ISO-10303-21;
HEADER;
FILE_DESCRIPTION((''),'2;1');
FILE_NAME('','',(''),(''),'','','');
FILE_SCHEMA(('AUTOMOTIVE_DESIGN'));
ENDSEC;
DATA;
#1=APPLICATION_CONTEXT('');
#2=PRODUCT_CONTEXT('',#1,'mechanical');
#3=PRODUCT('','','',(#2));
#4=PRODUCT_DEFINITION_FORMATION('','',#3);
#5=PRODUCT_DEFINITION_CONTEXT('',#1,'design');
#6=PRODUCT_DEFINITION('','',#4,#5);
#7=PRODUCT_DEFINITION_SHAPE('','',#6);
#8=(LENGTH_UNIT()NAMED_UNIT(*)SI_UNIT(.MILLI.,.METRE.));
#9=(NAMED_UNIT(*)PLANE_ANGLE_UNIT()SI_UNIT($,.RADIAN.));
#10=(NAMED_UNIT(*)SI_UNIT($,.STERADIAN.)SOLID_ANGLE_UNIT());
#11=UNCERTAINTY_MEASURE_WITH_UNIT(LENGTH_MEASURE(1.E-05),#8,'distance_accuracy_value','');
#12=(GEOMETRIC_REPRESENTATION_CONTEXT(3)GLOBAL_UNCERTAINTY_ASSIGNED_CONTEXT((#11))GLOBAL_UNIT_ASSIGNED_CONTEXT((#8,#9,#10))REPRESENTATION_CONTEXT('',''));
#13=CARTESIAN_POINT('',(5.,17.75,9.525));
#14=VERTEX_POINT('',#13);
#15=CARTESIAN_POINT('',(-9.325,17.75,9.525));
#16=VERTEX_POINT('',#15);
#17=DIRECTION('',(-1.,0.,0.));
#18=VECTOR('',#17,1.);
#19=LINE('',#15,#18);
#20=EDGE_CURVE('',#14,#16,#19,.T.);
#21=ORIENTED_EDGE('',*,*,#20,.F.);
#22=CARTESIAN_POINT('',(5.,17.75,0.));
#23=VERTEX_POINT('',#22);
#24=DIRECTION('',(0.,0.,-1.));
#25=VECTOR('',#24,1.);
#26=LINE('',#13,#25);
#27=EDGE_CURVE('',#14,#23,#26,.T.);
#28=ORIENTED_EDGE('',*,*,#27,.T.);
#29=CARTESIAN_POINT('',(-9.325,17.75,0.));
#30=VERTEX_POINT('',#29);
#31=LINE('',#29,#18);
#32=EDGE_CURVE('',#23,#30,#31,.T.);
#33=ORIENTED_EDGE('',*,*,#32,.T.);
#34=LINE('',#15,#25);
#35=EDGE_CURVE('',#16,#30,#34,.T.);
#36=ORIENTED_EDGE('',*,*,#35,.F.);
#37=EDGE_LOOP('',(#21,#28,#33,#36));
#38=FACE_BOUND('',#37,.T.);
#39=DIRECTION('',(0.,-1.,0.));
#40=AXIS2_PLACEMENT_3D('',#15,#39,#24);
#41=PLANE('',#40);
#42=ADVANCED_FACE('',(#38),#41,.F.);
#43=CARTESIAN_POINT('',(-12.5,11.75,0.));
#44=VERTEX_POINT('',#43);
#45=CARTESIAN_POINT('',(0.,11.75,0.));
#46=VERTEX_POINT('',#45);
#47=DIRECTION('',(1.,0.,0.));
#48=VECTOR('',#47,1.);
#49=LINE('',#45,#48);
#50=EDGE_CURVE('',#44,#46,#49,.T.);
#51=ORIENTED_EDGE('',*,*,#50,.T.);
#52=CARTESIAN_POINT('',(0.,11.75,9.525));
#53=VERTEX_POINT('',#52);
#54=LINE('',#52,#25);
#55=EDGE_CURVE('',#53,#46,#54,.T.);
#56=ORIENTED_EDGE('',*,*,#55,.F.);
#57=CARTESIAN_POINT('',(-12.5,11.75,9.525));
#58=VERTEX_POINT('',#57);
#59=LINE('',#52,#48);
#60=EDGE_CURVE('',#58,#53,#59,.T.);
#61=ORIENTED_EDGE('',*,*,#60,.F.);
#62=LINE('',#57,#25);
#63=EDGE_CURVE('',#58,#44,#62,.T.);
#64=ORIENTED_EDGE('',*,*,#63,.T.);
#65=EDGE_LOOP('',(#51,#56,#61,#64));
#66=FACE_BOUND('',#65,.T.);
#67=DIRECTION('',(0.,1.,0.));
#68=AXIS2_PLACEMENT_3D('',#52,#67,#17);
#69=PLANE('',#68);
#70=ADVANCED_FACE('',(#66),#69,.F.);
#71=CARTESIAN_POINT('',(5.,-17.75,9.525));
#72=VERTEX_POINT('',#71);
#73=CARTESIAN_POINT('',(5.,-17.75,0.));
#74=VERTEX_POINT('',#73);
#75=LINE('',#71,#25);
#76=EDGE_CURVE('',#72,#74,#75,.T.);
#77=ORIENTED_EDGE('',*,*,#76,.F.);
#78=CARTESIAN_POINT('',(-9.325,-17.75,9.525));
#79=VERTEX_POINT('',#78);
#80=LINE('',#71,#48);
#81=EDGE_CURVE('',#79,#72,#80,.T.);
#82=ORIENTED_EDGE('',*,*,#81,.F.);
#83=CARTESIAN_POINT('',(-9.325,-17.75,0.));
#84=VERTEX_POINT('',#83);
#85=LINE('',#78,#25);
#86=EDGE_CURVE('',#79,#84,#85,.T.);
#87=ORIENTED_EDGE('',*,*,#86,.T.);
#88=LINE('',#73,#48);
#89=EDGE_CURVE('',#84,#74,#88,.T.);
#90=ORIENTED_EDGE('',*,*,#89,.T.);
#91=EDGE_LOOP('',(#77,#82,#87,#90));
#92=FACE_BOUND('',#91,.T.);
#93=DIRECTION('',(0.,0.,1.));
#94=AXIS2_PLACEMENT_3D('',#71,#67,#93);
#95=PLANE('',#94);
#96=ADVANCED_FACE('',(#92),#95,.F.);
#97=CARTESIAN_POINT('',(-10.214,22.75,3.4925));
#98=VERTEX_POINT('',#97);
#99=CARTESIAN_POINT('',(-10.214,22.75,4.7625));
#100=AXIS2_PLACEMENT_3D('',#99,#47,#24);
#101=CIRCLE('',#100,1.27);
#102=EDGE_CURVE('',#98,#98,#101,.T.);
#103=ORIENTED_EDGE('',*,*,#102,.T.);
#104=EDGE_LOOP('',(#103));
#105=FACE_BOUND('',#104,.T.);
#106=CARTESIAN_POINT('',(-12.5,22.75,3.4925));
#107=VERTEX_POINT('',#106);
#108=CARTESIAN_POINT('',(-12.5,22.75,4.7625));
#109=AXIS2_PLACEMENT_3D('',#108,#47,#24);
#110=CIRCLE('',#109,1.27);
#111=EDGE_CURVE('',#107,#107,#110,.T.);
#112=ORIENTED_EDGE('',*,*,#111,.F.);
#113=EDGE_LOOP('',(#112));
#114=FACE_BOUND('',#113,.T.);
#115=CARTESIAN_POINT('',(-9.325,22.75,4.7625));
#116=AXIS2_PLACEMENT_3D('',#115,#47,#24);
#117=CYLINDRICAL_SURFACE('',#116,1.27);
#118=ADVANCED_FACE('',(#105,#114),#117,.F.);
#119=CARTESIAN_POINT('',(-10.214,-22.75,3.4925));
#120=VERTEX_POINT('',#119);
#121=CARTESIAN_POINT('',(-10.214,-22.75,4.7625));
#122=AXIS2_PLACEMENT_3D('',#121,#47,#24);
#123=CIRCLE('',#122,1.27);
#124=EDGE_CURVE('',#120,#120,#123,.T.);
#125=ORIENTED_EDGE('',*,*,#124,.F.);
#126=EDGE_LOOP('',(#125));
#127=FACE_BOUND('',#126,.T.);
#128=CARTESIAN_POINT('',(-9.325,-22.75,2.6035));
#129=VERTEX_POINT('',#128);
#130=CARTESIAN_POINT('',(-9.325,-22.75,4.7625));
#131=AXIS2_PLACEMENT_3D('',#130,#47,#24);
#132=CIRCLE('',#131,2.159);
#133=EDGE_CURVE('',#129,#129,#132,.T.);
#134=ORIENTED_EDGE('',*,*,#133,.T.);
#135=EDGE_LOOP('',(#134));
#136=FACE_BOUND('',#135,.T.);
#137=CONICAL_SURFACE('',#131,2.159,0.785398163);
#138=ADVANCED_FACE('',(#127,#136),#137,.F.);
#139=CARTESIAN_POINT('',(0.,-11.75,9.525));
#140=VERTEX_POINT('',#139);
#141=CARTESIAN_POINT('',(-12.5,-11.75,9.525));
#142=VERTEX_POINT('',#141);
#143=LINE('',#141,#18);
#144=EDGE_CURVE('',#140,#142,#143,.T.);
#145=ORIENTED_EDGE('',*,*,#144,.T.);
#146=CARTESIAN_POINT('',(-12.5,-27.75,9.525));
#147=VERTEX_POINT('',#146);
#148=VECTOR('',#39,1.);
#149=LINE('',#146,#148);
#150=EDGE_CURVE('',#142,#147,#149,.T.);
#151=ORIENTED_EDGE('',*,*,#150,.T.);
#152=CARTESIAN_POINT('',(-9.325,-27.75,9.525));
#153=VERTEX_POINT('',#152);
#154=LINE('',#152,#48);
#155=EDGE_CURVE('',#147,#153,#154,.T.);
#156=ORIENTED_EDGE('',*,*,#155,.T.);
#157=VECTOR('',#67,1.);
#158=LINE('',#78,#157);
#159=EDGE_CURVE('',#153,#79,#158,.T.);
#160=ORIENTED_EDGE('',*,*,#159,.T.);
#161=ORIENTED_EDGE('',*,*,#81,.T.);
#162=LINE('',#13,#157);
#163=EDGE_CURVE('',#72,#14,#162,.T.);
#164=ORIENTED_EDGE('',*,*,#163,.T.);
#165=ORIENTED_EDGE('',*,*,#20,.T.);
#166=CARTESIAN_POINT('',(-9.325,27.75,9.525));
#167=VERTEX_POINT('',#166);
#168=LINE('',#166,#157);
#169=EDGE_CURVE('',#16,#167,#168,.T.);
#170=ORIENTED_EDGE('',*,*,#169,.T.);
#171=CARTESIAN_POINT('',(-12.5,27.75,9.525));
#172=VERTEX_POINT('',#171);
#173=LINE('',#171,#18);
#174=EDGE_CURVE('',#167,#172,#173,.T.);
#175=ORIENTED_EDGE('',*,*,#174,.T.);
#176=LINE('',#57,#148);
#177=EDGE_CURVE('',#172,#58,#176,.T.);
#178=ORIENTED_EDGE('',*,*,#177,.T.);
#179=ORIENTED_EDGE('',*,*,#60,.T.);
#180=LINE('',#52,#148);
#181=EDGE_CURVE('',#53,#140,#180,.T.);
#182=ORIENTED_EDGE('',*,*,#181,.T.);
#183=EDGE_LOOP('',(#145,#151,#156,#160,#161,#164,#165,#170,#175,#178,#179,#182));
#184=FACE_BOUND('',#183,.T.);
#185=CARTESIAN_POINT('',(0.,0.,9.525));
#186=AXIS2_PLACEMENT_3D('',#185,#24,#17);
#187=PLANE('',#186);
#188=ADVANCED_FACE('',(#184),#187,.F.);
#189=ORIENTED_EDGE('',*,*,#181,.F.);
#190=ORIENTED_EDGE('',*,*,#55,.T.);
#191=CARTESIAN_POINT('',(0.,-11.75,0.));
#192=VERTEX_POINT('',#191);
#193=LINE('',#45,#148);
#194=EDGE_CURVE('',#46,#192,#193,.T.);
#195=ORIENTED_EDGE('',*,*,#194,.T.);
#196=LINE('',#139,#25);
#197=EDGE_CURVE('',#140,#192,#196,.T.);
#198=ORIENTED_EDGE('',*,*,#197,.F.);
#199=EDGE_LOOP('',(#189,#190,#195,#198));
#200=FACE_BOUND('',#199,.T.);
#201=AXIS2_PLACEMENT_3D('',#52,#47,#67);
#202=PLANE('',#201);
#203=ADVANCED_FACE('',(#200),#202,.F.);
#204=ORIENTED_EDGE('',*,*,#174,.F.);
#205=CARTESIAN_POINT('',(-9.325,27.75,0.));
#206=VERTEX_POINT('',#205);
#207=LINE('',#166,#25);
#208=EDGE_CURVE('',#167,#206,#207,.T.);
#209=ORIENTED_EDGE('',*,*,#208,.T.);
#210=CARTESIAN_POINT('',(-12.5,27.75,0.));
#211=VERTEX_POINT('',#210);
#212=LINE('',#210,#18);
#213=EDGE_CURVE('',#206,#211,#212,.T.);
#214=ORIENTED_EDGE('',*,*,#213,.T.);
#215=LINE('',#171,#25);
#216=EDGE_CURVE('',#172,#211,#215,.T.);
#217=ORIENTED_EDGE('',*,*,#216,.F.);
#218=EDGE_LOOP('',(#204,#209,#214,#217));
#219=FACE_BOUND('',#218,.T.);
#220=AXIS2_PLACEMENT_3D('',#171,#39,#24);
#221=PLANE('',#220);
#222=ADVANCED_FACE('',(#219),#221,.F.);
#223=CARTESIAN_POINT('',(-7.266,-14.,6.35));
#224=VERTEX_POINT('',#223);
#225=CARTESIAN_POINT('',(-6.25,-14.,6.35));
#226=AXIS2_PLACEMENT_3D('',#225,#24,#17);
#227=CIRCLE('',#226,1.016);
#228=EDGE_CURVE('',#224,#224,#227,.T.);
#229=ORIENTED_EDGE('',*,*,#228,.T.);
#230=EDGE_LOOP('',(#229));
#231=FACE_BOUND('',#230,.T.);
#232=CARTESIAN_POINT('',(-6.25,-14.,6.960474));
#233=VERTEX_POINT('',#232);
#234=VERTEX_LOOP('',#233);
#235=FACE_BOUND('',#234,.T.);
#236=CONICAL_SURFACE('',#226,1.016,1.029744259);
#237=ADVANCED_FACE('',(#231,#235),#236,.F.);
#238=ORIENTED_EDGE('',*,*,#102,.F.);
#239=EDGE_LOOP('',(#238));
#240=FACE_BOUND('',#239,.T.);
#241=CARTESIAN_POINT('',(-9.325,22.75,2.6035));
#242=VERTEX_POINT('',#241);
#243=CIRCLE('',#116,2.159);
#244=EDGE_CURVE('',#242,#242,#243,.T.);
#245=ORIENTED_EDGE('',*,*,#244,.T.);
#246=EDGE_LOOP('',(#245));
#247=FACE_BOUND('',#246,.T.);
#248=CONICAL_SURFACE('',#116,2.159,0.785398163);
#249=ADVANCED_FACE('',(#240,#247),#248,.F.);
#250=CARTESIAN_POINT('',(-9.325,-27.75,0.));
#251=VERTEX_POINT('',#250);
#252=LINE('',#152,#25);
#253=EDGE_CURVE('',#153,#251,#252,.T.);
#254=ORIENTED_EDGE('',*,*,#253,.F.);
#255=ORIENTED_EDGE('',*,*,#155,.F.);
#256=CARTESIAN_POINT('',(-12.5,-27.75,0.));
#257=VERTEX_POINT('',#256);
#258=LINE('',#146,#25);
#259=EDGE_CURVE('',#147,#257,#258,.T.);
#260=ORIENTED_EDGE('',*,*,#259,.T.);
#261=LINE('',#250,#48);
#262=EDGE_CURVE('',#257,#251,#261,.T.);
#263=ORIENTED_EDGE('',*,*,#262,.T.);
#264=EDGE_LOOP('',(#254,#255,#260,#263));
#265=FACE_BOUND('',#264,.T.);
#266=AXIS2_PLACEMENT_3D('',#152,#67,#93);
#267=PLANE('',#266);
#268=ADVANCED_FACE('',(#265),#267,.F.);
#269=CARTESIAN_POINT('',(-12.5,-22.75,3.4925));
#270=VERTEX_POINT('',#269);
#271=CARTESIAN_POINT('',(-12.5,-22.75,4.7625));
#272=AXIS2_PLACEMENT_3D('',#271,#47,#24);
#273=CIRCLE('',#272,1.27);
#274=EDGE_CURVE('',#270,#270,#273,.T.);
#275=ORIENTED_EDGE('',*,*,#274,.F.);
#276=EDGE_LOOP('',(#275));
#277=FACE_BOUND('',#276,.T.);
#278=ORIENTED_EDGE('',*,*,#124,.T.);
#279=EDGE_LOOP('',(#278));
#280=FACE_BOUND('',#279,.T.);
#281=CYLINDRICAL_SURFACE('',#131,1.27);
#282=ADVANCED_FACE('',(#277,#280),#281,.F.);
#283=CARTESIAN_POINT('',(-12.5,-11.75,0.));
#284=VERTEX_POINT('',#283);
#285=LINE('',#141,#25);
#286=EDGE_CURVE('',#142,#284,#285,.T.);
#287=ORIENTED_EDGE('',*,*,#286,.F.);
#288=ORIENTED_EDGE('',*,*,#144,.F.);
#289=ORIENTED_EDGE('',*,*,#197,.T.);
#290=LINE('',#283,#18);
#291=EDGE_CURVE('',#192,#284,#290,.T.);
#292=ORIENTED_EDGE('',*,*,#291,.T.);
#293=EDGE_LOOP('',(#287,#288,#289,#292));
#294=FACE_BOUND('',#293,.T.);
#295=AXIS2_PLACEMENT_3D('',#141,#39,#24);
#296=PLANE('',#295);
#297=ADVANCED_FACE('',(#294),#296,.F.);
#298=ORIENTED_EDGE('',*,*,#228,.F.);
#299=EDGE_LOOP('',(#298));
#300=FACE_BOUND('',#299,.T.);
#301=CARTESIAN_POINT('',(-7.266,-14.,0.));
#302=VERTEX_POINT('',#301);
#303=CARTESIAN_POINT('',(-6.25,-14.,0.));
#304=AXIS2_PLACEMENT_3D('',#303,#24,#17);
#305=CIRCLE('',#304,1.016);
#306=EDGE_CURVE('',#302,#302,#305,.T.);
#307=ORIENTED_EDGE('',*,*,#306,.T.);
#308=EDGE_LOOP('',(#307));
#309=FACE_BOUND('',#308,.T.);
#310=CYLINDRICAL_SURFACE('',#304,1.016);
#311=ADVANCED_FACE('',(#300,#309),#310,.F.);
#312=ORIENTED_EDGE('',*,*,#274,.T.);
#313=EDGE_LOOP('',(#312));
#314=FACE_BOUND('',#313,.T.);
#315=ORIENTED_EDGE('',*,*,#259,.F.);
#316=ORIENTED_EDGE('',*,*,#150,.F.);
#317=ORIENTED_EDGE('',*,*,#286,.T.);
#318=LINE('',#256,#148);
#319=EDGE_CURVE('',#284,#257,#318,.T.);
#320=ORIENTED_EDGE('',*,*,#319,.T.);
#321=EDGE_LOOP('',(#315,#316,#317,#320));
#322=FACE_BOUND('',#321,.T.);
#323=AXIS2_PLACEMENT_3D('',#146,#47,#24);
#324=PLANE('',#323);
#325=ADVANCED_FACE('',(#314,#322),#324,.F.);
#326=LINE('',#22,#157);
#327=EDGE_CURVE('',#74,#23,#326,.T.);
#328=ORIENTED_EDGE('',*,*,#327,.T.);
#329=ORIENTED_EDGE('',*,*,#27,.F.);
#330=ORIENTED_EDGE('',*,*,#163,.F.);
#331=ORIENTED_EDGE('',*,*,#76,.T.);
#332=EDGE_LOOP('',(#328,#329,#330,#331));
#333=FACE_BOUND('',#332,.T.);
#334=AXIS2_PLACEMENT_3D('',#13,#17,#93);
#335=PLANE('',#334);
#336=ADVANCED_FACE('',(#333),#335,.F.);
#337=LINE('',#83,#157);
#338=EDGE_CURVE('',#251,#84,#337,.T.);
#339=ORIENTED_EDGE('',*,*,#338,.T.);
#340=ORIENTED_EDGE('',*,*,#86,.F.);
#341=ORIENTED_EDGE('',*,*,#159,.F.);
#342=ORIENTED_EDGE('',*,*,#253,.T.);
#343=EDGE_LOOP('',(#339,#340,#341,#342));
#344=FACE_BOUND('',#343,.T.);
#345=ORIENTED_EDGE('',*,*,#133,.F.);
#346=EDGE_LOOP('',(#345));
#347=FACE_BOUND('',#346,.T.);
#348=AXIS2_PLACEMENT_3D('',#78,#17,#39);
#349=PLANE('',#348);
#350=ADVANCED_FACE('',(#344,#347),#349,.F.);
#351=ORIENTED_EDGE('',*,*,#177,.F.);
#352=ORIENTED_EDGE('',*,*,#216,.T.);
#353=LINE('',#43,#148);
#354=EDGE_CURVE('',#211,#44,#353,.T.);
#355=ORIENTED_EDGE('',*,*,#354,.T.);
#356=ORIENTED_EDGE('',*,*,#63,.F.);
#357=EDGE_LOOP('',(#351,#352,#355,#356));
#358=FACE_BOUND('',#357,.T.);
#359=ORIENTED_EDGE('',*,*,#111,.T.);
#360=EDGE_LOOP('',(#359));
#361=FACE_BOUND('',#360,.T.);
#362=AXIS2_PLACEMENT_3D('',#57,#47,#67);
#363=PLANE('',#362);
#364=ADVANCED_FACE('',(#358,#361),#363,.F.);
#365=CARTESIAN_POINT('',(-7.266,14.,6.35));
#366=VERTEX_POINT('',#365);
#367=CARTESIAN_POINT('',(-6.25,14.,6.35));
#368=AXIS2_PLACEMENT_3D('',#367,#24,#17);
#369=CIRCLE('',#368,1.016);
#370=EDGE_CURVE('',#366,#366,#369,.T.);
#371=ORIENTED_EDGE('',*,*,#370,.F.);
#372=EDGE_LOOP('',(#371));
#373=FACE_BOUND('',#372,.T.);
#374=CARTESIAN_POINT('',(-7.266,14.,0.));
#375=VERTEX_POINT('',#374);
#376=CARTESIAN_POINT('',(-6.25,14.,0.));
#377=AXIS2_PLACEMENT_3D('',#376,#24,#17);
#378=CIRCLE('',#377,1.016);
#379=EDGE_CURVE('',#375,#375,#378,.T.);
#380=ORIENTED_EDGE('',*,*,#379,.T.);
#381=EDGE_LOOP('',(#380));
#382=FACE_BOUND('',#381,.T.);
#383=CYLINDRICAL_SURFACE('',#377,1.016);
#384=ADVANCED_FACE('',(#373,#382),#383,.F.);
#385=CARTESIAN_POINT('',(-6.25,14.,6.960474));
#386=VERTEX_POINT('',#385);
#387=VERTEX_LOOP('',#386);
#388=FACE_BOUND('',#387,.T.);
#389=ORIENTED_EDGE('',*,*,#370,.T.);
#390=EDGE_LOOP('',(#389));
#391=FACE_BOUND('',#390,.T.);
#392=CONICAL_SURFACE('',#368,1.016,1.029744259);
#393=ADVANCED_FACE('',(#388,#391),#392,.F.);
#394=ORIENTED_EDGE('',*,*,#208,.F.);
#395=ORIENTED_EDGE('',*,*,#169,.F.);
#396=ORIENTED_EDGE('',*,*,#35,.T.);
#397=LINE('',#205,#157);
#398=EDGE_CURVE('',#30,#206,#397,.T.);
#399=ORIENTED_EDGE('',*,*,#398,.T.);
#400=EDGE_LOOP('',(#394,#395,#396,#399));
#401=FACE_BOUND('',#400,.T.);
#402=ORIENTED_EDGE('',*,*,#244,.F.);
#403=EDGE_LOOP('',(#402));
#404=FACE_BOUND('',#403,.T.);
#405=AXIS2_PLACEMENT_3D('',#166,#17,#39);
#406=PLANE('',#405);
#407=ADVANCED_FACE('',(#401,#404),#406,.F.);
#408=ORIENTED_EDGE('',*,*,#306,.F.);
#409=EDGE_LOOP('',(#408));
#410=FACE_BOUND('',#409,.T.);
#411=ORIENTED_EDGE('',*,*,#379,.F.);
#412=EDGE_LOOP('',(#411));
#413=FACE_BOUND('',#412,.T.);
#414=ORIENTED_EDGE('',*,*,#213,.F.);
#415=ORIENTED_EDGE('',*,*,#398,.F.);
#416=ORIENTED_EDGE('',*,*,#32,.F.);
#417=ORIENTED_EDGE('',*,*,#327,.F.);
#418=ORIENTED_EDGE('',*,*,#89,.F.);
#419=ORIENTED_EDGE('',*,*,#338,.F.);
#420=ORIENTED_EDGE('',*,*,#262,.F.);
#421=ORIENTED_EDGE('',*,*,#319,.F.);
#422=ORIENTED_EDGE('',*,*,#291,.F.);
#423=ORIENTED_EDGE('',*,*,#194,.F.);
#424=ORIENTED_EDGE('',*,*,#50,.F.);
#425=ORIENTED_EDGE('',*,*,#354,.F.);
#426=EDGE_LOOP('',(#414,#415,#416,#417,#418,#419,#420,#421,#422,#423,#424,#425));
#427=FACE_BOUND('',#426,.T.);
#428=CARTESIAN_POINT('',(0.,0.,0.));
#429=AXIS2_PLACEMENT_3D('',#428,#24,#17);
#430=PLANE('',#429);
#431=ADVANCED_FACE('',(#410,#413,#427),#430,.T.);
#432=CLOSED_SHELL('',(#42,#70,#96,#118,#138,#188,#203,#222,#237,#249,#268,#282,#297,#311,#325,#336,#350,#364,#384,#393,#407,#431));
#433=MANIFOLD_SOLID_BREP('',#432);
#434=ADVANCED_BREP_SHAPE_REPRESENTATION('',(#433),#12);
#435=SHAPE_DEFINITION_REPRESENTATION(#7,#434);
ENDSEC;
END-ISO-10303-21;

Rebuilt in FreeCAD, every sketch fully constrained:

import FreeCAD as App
import Part
import Sketcher

V = App.Vector


def add_polygon(sketch, points):
    """Adds a closed chain of lines whose ends are joined by coincident constraints."""
    first, n = sketch.GeometryCount, len(points)
    for a, b in zip(points, points[1:] + points[:1]):
        sketch.addGeometry(Part.LineSegment(App.Vector(*a, 0), App.Vector(*b, 0)), False)
    for i in range(n):
        sketch.addConstraint(Sketcher.Constraint("Coincident", first + i, 2, first + (i + 1) % n, 1))

doc = App.newDocument("Part")
body = doc.addObject("PartDesign::Body", "Body")

sketch1 = body.newObject("Sketcher::SketchObject", "Sketch")
sketch1.AttachmentSupport = (doc.getObject("XY_Plane"), [""])
sketch1.MapMode = "FlatFace"
add_polygon(sketch1, [(0, 11.8), (0, -11.8), (-12.5, -11.8), (-12.5, -27.8), (-9.3, -27.8), (-9.3, -17.8), (5, -17.8), (5, 17.8), (-9.3, 17.8), (-9.3, 27.8), (-12.5, 27.8), (-12.5, 11.8)])
sketch1.addConstraint(Sketcher.Constraint("Vertical", 0))
sketch1.addConstraint(Sketcher.Constraint("Horizontal", 1))
sketch1.addConstraint(Sketcher.Constraint("Vertical", 2))
sketch1.addConstraint(Sketcher.Constraint("Horizontal", 3))
sketch1.addConstraint(Sketcher.Constraint("Vertical", 4))
sketch1.addConstraint(Sketcher.Constraint("Horizontal", 5))
sketch1.addConstraint(Sketcher.Constraint("Vertical", 6))
sketch1.addConstraint(Sketcher.Constraint("Horizontal", 7))
sketch1.addConstraint(Sketcher.Constraint("Vertical", 8))
sketch1.addConstraint(Sketcher.Constraint("Horizontal", 9))
sketch1.addConstraint(Sketcher.Constraint("Vertical", 10))
sketch1.addConstraint(Sketcher.Constraint("Horizontal", 11))
sketch1.addConstraint(Sketcher.Constraint("Symmetric", 0, 2, 11, 2, -1, 1))
sketch1.addConstraint(Sketcher.Constraint("Symmetric", 4, 2, 7, 2, -1))
sketch1.addConstraint(Sketcher.Constraint("Symmetric", 2, 2, 9, 2, -1))
sketch1.addConstraint(Sketcher.Constraint("DistanceY", 2, 2, 2, 1, 16.0))
sketch1.addConstraint(Sketcher.Constraint("DistanceY", 4, 1, 4, 2, 10.0))
sketch1.addConstraint(Sketcher.Constraint("DistanceX", 1, 2, 1, 1, 12.5))
sketch1.addConstraint(Sketcher.Constraint("DistanceY", 0, 2, 0, 1, 23.5))
sketch1.addConstraint(Sketcher.Constraint("DistanceX", -1, 1, 5, 2, 5.0))
sketch1.addConstraint(Sketcher.Constraint("DistanceX", 3, 1, 3, 2, 3.175))
pad1 = body.newObject("PartDesign::Pad", "Pad")
pad1.Profile = sketch1
pad1.Length = 9.525

sketch2 = body.newObject("Sketcher::SketchObject", "Sketch001")
sketch2.AttachmentSupport = (doc.getObject("XY_Plane"), [""])
sketch2.MapMode = "FlatFace"
sketch2.addGeometry(Part.Circle(V(-6.2, 14, 0), V(0, 0, 1), 1), False)
sketch2.addGeometry(Part.Circle(V(-6.2, -14, 0), V(0, 0, 1), 1), False)
sketch2.addConstraint(Sketcher.Constraint("Equal", 0, 1))
sketch2.addConstraint(Sketcher.Constraint("Symmetric", 0, 3, 1, 3, -1))
sketch2.addConstraint(Sketcher.Constraint("Diameter", 0, 2.032))
sketch2.addConstraint(Sketcher.Constraint("DistanceY", -1, 1, 0, 3, 14.0))
sketch2.addConstraint(Sketcher.Constraint("DistanceX", 0, 3, -1, 1, 6.25))
doc.recompute()
hole = body.newObject("PartDesign::Hole", "Hole")
hole.Profile = sketch2
hole.ThreadType = "None"
hole.Diameter = 2.032
hole.DepthType = "Dimension"
hole.Depth = 6.35
hole.DrillPoint = "Angled"
hole.DrillPointAngle = 118
hole.Reversed = True

sketch3 = body.newObject("Sketcher::SketchObject", "Sketch002")
sketch3.AttachmentSupport = (doc.getObject("YZ_Plane"), [""])
sketch3.MapMode = "FlatFace"
sketch3.AttachmentOffset = App.Placement(V(0, 0, -9.325), App.Rotation())
sketch3.addGeometry(Part.Circle(V(22.8, 4.8, 0), V(0, 0, 1), 1.3), False)
sketch3.addGeometry(Part.Circle(V(-22.8, 4.8, 0), V(0, 0, 1), 1.3), False)
sketch3.addConstraint(Sketcher.Constraint("Equal", 0, 1))
sketch3.addConstraint(Sketcher.Constraint("Symmetric", 0, 3, 1, 3, -2))
sketch3.addConstraint(Sketcher.Constraint("Diameter", 0, 2.54))
sketch3.addConstraint(Sketcher.Constraint("DistanceX", 1, 3, 0, 3, 45.5))
sketch3.addConstraint(Sketcher.Constraint("DistanceY", -1, 1, 0, 3, 4.7625))
doc.recompute()
hole2 = body.newObject("PartDesign::Hole", "Hole001")
hole2.Profile = sketch3
hole2.ThreadType = "None"
hole2.Diameter = 2.54
hole2.DepthType = "ThroughAll"
hole2.HoleCutType = "Countersink"
hole2.HoleCutDiameter = 4.318
hole2.HoleCutCountersinkAngle = 90

doc.recompute()
